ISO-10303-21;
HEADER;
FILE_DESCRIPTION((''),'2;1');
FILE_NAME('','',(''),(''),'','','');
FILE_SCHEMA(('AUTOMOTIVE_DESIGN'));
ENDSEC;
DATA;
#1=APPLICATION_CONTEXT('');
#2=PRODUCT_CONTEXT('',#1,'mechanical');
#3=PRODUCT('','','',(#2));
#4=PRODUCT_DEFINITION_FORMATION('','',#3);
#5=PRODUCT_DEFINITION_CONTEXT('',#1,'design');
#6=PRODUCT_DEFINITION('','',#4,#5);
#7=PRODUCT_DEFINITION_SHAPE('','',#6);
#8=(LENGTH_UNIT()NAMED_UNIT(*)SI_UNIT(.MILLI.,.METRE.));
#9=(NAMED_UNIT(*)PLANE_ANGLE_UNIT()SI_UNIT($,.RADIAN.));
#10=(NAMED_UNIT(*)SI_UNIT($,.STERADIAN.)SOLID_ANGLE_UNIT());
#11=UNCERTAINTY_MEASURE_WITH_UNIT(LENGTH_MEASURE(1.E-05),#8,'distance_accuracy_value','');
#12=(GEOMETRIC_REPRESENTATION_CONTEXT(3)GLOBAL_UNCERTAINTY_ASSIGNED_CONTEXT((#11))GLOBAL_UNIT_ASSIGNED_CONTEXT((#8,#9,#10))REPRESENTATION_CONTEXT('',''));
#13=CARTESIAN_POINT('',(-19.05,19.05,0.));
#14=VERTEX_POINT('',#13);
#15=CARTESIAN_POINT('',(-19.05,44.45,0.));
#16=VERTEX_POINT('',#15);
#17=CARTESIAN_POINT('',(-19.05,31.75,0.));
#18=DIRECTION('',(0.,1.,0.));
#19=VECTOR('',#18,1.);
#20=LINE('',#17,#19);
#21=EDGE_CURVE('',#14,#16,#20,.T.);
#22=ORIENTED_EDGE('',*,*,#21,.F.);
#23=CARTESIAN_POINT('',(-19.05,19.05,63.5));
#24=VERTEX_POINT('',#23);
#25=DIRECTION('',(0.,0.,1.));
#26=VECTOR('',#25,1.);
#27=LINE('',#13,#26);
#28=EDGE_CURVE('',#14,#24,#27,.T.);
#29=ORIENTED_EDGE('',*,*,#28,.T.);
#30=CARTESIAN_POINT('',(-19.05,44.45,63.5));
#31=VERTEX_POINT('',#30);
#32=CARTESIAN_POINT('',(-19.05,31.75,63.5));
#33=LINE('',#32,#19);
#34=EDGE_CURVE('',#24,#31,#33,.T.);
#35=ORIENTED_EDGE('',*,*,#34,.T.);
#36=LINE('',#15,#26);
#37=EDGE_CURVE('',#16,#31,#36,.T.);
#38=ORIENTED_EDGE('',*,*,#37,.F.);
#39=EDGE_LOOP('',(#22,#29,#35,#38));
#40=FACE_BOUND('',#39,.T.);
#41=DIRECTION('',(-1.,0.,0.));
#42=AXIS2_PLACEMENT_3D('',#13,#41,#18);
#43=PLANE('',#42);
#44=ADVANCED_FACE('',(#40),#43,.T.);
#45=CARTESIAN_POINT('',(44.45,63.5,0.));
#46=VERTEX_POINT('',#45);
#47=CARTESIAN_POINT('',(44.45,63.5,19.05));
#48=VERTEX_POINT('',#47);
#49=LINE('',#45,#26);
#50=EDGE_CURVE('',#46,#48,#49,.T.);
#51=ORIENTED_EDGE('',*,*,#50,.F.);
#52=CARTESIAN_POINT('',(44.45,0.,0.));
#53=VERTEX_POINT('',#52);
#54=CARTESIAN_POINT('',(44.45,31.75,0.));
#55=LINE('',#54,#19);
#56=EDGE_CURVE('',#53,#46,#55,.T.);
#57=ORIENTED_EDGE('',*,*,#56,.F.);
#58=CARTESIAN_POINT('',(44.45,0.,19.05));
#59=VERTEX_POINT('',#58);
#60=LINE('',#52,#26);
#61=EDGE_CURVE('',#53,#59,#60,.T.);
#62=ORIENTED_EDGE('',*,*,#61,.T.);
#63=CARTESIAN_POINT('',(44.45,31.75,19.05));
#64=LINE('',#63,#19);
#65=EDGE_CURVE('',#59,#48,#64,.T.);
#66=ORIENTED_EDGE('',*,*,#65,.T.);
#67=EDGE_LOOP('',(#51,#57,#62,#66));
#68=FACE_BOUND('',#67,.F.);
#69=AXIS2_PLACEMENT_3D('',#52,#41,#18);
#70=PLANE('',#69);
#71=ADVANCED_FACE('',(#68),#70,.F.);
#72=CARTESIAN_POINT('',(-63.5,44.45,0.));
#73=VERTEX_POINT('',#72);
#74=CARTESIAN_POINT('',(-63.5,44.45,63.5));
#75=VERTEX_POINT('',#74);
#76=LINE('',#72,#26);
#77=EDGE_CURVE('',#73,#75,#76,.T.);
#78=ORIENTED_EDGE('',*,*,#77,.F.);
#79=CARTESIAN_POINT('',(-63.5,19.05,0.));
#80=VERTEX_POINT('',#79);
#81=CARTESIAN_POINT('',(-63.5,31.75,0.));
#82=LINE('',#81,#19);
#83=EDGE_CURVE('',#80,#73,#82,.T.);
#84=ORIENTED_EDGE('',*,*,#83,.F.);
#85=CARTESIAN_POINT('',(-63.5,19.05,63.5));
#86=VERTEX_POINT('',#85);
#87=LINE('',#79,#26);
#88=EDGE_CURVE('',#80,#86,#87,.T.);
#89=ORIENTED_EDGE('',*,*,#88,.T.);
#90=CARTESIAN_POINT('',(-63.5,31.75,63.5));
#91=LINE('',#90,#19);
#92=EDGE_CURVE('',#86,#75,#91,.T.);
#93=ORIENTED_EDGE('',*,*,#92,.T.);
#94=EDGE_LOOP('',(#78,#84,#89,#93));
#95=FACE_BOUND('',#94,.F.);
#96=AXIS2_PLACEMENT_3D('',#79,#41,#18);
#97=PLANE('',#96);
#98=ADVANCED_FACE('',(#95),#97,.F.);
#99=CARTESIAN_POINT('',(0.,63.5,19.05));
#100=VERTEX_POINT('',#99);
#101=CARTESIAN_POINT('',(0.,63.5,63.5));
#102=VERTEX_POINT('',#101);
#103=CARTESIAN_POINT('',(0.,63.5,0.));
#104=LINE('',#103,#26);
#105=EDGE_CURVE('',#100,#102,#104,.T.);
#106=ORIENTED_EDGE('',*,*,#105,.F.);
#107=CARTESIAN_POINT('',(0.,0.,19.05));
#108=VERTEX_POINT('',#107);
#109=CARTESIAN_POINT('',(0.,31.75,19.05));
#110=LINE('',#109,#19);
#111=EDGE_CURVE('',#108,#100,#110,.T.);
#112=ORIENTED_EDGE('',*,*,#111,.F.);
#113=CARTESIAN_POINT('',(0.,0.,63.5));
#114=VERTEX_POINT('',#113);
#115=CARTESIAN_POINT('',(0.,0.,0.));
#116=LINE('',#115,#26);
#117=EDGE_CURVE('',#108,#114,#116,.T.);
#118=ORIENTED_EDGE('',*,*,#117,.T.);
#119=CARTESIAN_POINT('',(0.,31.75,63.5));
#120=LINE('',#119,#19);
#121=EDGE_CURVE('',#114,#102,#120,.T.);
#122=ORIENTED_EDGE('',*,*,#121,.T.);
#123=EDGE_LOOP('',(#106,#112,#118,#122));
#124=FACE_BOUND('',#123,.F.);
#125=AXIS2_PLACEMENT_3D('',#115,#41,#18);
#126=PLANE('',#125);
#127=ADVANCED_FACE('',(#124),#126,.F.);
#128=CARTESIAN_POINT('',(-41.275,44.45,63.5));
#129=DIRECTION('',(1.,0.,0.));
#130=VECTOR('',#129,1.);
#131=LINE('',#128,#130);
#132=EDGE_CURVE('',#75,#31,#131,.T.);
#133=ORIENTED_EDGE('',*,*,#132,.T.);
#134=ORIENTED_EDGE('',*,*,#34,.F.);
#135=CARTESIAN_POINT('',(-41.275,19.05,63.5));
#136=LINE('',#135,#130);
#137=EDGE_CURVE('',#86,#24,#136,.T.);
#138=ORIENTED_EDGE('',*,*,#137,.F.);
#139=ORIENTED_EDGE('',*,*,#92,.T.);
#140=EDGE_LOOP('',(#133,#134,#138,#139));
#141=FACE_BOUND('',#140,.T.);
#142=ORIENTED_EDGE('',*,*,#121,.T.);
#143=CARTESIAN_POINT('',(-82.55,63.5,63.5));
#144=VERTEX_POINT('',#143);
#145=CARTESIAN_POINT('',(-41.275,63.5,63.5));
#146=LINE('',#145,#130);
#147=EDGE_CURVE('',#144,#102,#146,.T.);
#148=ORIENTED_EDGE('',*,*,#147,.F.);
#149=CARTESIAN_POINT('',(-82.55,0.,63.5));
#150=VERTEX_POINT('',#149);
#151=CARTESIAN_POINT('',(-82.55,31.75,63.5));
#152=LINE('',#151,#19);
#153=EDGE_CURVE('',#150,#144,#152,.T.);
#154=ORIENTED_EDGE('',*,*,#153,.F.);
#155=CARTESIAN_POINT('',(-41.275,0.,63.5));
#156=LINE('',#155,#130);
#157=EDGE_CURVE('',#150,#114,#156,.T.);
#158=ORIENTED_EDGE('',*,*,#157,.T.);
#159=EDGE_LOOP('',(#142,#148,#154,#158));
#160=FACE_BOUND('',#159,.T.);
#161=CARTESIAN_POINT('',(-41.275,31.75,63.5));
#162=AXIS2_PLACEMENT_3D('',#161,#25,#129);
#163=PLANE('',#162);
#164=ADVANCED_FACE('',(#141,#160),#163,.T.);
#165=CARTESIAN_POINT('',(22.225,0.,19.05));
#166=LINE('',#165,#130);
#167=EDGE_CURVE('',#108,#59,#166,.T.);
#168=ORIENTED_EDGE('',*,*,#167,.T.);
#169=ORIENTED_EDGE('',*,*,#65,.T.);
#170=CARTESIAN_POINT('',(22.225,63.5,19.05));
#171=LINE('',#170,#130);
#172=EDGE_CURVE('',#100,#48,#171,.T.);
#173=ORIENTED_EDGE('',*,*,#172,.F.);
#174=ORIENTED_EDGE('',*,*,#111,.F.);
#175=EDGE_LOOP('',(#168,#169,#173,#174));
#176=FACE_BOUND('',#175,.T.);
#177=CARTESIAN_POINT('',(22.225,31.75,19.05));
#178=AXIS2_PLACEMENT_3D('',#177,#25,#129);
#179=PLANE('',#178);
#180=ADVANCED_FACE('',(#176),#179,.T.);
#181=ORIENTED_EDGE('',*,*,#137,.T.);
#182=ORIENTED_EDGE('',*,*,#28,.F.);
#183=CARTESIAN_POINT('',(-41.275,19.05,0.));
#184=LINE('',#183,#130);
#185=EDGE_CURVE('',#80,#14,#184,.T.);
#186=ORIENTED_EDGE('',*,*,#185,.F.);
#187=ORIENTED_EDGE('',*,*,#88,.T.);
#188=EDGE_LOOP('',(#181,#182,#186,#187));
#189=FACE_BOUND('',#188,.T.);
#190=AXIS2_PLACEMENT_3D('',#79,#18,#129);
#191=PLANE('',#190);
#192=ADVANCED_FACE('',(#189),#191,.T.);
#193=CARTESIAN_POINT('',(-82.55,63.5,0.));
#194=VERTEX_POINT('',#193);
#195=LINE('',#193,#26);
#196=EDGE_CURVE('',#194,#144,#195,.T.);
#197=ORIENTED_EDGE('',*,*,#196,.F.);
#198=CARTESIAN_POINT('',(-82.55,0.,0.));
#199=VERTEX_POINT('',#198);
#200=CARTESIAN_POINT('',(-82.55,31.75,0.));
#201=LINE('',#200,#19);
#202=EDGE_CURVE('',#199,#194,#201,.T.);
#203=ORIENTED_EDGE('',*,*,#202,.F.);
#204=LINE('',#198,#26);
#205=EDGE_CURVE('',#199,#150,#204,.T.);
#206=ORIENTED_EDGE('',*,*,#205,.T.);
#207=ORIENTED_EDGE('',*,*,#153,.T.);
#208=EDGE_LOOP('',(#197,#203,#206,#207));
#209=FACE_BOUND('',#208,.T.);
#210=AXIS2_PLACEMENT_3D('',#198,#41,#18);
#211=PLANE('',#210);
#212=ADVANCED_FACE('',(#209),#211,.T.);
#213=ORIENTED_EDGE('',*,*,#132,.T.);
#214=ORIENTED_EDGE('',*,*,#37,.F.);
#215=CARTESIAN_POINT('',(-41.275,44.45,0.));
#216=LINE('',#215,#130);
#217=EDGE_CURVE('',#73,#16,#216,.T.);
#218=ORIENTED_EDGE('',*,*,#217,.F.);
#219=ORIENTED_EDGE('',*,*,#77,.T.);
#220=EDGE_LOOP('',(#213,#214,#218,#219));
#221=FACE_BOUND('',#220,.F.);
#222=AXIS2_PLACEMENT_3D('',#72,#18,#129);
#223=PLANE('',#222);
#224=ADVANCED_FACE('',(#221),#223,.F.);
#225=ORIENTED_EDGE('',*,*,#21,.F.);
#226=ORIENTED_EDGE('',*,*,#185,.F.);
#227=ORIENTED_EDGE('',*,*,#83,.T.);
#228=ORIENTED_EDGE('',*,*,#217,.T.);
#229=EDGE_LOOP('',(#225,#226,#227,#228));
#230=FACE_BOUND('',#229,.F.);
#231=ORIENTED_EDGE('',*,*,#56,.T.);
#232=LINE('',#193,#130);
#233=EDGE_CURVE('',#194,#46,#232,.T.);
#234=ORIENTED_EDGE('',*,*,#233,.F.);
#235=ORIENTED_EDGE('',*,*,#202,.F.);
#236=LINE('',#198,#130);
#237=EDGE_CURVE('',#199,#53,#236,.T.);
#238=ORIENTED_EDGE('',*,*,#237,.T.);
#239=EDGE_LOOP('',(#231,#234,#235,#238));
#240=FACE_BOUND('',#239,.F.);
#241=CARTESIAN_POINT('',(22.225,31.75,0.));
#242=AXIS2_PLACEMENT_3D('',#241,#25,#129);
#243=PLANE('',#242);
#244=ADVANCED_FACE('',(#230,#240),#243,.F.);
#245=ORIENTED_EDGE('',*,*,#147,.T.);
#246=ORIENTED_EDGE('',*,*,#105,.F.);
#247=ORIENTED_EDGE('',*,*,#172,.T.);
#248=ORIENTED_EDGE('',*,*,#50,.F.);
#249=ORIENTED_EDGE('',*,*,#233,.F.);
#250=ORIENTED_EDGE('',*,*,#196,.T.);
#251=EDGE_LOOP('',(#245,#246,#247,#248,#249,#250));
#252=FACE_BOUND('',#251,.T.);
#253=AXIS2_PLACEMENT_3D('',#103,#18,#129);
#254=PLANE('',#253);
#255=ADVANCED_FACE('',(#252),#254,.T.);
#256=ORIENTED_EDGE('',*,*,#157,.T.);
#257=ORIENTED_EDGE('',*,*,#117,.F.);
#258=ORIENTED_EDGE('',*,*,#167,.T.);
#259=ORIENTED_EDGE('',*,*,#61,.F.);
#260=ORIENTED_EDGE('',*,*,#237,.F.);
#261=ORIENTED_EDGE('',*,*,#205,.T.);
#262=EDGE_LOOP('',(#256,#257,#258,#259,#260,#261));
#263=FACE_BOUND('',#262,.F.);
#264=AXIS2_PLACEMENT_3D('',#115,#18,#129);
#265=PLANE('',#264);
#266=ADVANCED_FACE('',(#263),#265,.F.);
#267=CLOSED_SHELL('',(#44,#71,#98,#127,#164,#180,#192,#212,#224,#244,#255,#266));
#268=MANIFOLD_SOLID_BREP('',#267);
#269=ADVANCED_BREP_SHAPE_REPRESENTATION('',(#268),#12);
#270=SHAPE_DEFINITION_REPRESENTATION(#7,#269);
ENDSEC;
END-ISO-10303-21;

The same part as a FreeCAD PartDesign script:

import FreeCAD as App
import Part
import Sketcher

V = App.Vector
Q = App.Units.Quantity


def add_polygon(sketch, points):
    """Adds a closed chain of lines whose ends are joined by coincident constraints."""
    first, n = sketch.GeometryCount, len(points)
    for a, b in zip(points, points[1:] + points[:1]):
        sketch.addGeometry(Part.LineSegment(App.Vector(*a, 0), App.Vector(*b, 0)), False)
    for i in range(n):
        sketch.addConstraint(Sketcher.Constraint("Coincident", first + i, 2, first + (i + 1) % n, 1))

doc = App.newDocument("Part")
body = doc.addObject("PartDesign::Body", "Body")

# Sketch on XY plane
sketch1 = body.newObject("Sketcher::SketchObject", "Sketch")
sketch1.AttachmentSupport = (doc.getObject("XY_Plane"), [""])
sketch1.MapMode = "FlatFace"
add_polygon(sketch1, [(-83, 64), (-83, 0), (0, 0), (0, 64)])  # lines 0-3
add_polygon(sketch1, [(-19, 19), (-64, 19), (-64, 44), (-19, 44)])  # lines 4-7
sketch1.addConstraint([
    Sketcher.Constraint("Vertical", 0),
    Sketcher.Constraint("Horizontal", 1),
    Sketcher.Constraint("Vertical", 2),
    Sketcher.Constraint("Horizontal", 3),
    Sketcher.Constraint("Horizontal", 4),
    Sketcher.Constraint("Vertical", 5),
    Sketcher.Constraint("Horizontal", 6),
    Sketcher.Constraint("Vertical", 7),
    Sketcher.Constraint("Coincident", 1, 2, -1, 1),
    Sketcher.Constraint("DistanceY", 5, 1, 5, 2, Q("1 in")),
    Sketcher.Constraint("DistanceY", 0, 2, 0, 1, Q("2.5 in")),
    Sketcher.Constraint("DistanceX", 1, 1, 1, 2, Q("3.25 in")),
    Sketcher.Constraint("DistanceX", 4, 2, 4, 1, Q("1.75 in")),
    Sketcher.Constraint("DistanceX", 4, 2, -1, 1, Q("2.5 in")),
    Sketcher.Constraint("DistanceY", -1, 1, 4, 2, Q("0.75 in")),
])
pad1 = body.newObject("PartDesign::Pad", "Pad")
pad1.Profile = sketch1
pad1.Length = Q("2.5 in")

# Sketch on XY plane
sketch2 = body.newObject("Sketcher::SketchObject", "Sketch001")
sketch2.AttachmentSupport = (doc.getObject("XY_Plane"), [""])
sketch2.MapMode = "FlatFace"
add_polygon(sketch2, [(0, 64), (0, 0), (44, 0), (44, 64)])  # lines 0-3
sketch2.addConstraint([
    Sketcher.Constraint("Vertical", 0),
    Sketcher.Constraint("Horizontal", 1),
    Sketcher.Constraint("Vertical", 2),
    Sketcher.Constraint("Horizontal", 3),
    Sketcher.Constraint("Coincident", 0, 2, -1, 1),
    Sketcher.Constraint("DistanceY", 0, 2, 0, 1, Q("2.5 in")),
    Sketcher.Constraint("DistanceX", 1, 1, 1, 2, Q("1.75 in")),
])
pad2 = body.newObject("PartDesign::Pad", "Pad001")
pad2.Profile = sketch2
pad2.Length = Q("0.75 in")

doc.recompute()
